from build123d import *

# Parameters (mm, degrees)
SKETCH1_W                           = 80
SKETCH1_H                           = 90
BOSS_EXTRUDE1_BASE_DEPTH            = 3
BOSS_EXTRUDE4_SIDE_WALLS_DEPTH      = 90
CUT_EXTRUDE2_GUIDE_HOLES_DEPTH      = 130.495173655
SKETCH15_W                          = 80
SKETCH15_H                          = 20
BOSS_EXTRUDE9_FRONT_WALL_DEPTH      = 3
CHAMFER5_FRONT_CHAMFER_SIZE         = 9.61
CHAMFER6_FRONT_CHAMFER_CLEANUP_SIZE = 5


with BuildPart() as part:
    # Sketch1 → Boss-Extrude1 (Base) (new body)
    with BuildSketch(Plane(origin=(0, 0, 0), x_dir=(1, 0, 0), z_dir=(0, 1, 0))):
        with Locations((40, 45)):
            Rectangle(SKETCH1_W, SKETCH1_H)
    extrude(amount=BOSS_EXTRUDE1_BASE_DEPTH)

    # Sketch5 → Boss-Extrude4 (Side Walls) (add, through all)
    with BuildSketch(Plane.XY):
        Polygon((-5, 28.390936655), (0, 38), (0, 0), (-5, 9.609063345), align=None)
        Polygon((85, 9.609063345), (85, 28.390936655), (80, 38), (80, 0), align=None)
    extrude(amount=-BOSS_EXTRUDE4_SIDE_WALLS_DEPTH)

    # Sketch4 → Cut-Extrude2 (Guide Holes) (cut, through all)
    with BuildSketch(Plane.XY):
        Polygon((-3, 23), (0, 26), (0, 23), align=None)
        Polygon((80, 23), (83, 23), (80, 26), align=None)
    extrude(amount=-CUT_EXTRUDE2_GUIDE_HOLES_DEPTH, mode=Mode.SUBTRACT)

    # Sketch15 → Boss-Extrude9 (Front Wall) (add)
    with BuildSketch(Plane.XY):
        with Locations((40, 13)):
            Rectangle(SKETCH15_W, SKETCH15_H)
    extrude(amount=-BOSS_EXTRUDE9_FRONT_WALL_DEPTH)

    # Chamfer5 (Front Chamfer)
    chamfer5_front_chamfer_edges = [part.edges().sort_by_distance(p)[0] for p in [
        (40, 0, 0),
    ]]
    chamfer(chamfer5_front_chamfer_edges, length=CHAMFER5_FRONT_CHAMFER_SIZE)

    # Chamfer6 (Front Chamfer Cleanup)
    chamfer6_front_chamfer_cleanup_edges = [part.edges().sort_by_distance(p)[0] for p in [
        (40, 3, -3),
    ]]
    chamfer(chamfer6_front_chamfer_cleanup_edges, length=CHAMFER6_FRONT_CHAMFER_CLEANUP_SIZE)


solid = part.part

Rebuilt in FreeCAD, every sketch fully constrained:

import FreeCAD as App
import Part
import Sketcher
from FreeCAD import Vector
Q = App.Units.Quantity


def edges_at(feature, points):
    """Names of the edges that pass closest to the given points."""
    edges = feature.Shape.Edges
    near = lambda p: min(range(len(edges)), key=lambda i: edges[i].distToShape(Part.Vertex(*p))[0])
    return sorted({f"Edge{near(p) + 1}" for p in points})

doc = App.newDocument("Part")
body = doc.addObject("PartDesign::Body", "Body")

sketch1 = doc.addObject("Sketcher::SketchObject", "Sketch")
body.addObject(sketch1)
sketch1.AttachmentSupport = (doc.XZ_Plane, [""])
sketch1.MapMode = "FlatFace"
sketch1.addGeometry([
    Part.LineSegment(Vector(0, -90, 0), Vector(0, 0, 0)),
    Part.LineSegment(Vector(0, 0, 0), Vector(80, 0, 0)),
    Part.LineSegment(Vector(80, 0, 0), Vector(80, -90, 0)),
    Part.LineSegment(Vector(80, -90, 0), Vector(0, -90, 0)),
], False)
sketch1.addConstraint([
    Sketcher.Constraint("Coincident", 0, 2, 1, 1),
    Sketcher.Constraint("Coincident", 1, 2, 2, 1),
    Sketcher.Constraint("Coincident", 2, 2, 3, 1),
    Sketcher.Constraint("Coincident", 3, 2, 0, 1),
    Sketcher.Constraint("Vertical", 0),
    Sketcher.Constraint("Horizontal", 1),
    Sketcher.Constraint("Vertical", 2),
    Sketcher.Constraint("Horizontal", 3),
    Sketcher.Constraint("Coincident", 0, 2, -1, 1),
    Sketcher.Constraint("DistanceX", 1, 1, 1, 2, Q("80 mm")),
    Sketcher.Constraint("DistanceY", 0, 1, 0, 2, Q("90 mm")),
])
pad1 = doc.addObject("PartDesign::Pad", "Pad")
body.addObject(pad1)
pad1.Profile = sketch1
pad1.Length = 3
pad1.Reversed = True

sketch2 = doc.addObject("Sketcher::SketchObject", "Sketch001")
body.addObject(sketch2)
sketch2.AttachmentSupport = (doc.XY_Plane, [""])
sketch2.MapMode = "FlatFace"
sketch2.addGeometry([
    Part.LineSegment(Vector(0, 38, 0), Vector(-5, 28, 0)),
    Part.LineSegment(Vector(-5, 28, 0), Vector(-5, 10, 0)),
    Part.LineSegment(Vector(-5, 10, 0), Vector(0, 0, 0)),
    Part.LineSegment(Vector(0, 0, 0), Vector(0, 38, 0)),
    Part.LineSegment(Vector(85, 10, 0), Vector(85, 28, 0)),
    Part.LineSegment(Vector(85, 28, 0), Vector(80, 38, 0)),
    Part.LineSegment(Vector(80, 38, 0), Vector(80, 0, 0)),
    Part.LineSegment(Vector(80, 0, 0), Vector(85, 10, 0)),
], False)
sketch2.addConstraint([
    Sketcher.Constraint("Coincident", 0, 2, 1, 1),
    Sketcher.Constraint("Coincident", 1, 2, 2, 1),
    Sketcher.Constraint("Coincident", 2, 2, 3, 1),
    Sketcher.Constraint("Coincident", 3, 2, 0, 1),
    Sketcher.Constraint("Coincident", 4, 2, 5, 1),
    Sketcher.Constraint("Coincident", 5, 2, 6, 1),
    Sketcher.Constraint("Coincident", 6, 2, 7, 1),
    Sketcher.Constraint("Coincident", 7, 2, 4, 1),
    Sketcher.Constraint("Vertical", 1),
    Sketcher.Constraint("Vertical", 3),
    Sketcher.Constraint("Vertical", 4),
    Sketcher.Constraint("Vertical", 6),
    Sketcher.Constraint("Coincident", 2, 2, -1, 1),
    Sketcher.Constraint("PointOnObject", 6, 2, -1),
    Sketcher.Constraint("Parallel", 2, 5),
    Sketcher.Constraint("Parallel", 0, 7),
    Sketcher.Constraint("Horizontal", 0, 2, 4, 2),
    Sketcher.Constraint("Horizontal", 3, 2, 5, 2),
    Sketcher.Constraint("Horizontal", 1, 2, 7, 2),
    Sketcher.Constraint("DistanceY", 3, 1, 3, 2, Q("38 mm")),
    Sketcher.Constraint("DistanceX", 0, 2, -1, 1, Q("5 mm")),
    Sketcher.Constraint("DistanceX", -1, 1, 4, 2, Q("85 mm")),
    Sketcher.Constraint("DistanceY", 1, 2, 1, 1, Q("18.781873 mm")),
])
pad2 = doc.addObject("PartDesign::Pad", "Pad001")
body.addObject(pad2)
pad2.Profile = sketch2
pad2.Length = 90
pad2.Reversed = True

sketch3 = doc.addObject("Sketcher::SketchObject", "Sketch002")
body.addObject(sketch3)
sketch3.AttachmentSupport = (doc.XY_Plane, [""])
sketch3.MapMode = "FlatFace"
sketch3.addGeometry([
    Part.LineSegment(Vector(0, 26, 0), Vector(-3, 23, 0)),
    Part.LineSegment(Vector(-3, 23, 0), Vector(0, 23, 0)),
    Part.LineSegment(Vector(0, 23, 0), Vector(0, 26, 0)),
    Part.LineSegment(Vector(80, 23, 0), Vector(83, 23, 0)),
    Part.LineSegment(Vector(83, 23, 0), Vector(80, 26, 0)),
    Part.LineSegment(Vector(80, 26, 0), Vector(80, 23, 0)),
], False)
sketch3.addConstraint([
    Sketcher.Constraint("Coincident", 0, 2, 1, 1),
    Sketcher.Constraint("Coincident", 1, 2, 2, 1),
    Sketcher.Constraint("Coincident", 2, 2, 0, 1),
    Sketcher.Constraint("Coincident", 3, 2, 4, 1),
    Sketcher.Constraint("Coincident", 4, 2, 5, 1),
    Sketcher.Constraint("Coincident", 5, 2, 3, 1),
    Sketcher.Constraint("Horizontal", 1),
    Sketcher.Constraint("Vertical", 2),
    Sketcher.Constraint("Horizontal", 3),
    Sketcher.Constraint("Vertical", 5),
    Sketcher.Constraint("PointOnObject", 1, 2, -2),
    Sketcher.Constraint("Perpendicular", 0, 4),
    Sketcher.Constraint("Horizontal", 1, 2, 3, 2),
    Sketcher.Constraint("Horizontal", 2, 2, 4, 2),
    Sketcher.Constraint("Equal", 1, 3),
    Sketcher.Constraint("DistanceX", 1, 1, 1, 2, Q("3 mm")),
    Sketcher.Constraint("DistanceY", -1, 1, 0, 2, Q("23 mm")),
    Sketcher.Constraint("DistanceX", -1, 1, 3, 2, Q("83 mm")),
])
pocket1 = doc.addObject("PartDesign::Pocket", "Pocket")
body.addObject(pocket1)
pocket1.Profile = sketch3
pocket1.Type = "ThroughAll"

sketch4 = doc.addObject("Sketcher::SketchObject", "Sketch003")
body.addObject(sketch4)
sketch4.AttachmentSupport = (doc.XY_Plane, [""])
sketch4.MapMode = "FlatFace"
sketch4.addGeometry([
    Part.LineSegment(Vector(0, 23, 0), Vector(0, 3, 0)),
    Part.LineSegment(Vector(0, 3, 0), Vector(80, 3, 0)),
    Part.LineSegment(Vector(80, 3, 0), Vector(80, 23, 0)),
    Part.LineSegment(Vector(80, 23, 0), Vector(0, 23, 0)),
], False)
sketch4.addConstraint([
    Sketcher.Constraint("Coincident", 0, 2, 1, 1),
    Sketcher.Constraint("Coincident", 1, 2, 2, 1),
    Sketcher.Constraint("Coincident", 2, 2, 3, 1),
    Sketcher.Constraint("Coincident", 3, 2, 0, 1),
    Sketcher.Constraint("Vertical", 0),
    Sketcher.Constraint("Horizontal", 1),
    Sketcher.Constraint("Vertical", 2),
    Sketcher.Constraint("Horizontal", 3),
    Sketcher.Constraint("PointOnObject", 0, 2, -2),
    Sketcher.Constraint("DistanceX", 1, 1, 1, 2, Q("80 mm")),
    Sketcher.Constraint("DistanceY", 0, 2, 0, 1, Q("20 mm")),
    Sketcher.Constraint("DistanceY", -1, 1, 0, 2, Q("3 mm")),
])
pad3 = doc.addObject("PartDesign::Pad", "Pad002")
body.addObject(pad3)
pad3.Profile = sketch4
pad3.Length = 3
pad3.Reversed = True
doc.recompute()

chamfer = doc.addObject("PartDesign::Chamfer", "Chamfer")
body.addObject(chamfer)
chamfer.Base = (pad3, edges_at(pad3, [(40, 0, 0)]))
chamfer.Size = 9.61
doc.recompute()

chamfer2 = doc.addObject("PartDesign::Chamfer", "Chamfer001")
body.addObject(chamfer2)
chamfer2.Base = (chamfer, edges_at(chamfer, [(40, 3, -3)]))
chamfer2.Size = 5

doc.recompute()
